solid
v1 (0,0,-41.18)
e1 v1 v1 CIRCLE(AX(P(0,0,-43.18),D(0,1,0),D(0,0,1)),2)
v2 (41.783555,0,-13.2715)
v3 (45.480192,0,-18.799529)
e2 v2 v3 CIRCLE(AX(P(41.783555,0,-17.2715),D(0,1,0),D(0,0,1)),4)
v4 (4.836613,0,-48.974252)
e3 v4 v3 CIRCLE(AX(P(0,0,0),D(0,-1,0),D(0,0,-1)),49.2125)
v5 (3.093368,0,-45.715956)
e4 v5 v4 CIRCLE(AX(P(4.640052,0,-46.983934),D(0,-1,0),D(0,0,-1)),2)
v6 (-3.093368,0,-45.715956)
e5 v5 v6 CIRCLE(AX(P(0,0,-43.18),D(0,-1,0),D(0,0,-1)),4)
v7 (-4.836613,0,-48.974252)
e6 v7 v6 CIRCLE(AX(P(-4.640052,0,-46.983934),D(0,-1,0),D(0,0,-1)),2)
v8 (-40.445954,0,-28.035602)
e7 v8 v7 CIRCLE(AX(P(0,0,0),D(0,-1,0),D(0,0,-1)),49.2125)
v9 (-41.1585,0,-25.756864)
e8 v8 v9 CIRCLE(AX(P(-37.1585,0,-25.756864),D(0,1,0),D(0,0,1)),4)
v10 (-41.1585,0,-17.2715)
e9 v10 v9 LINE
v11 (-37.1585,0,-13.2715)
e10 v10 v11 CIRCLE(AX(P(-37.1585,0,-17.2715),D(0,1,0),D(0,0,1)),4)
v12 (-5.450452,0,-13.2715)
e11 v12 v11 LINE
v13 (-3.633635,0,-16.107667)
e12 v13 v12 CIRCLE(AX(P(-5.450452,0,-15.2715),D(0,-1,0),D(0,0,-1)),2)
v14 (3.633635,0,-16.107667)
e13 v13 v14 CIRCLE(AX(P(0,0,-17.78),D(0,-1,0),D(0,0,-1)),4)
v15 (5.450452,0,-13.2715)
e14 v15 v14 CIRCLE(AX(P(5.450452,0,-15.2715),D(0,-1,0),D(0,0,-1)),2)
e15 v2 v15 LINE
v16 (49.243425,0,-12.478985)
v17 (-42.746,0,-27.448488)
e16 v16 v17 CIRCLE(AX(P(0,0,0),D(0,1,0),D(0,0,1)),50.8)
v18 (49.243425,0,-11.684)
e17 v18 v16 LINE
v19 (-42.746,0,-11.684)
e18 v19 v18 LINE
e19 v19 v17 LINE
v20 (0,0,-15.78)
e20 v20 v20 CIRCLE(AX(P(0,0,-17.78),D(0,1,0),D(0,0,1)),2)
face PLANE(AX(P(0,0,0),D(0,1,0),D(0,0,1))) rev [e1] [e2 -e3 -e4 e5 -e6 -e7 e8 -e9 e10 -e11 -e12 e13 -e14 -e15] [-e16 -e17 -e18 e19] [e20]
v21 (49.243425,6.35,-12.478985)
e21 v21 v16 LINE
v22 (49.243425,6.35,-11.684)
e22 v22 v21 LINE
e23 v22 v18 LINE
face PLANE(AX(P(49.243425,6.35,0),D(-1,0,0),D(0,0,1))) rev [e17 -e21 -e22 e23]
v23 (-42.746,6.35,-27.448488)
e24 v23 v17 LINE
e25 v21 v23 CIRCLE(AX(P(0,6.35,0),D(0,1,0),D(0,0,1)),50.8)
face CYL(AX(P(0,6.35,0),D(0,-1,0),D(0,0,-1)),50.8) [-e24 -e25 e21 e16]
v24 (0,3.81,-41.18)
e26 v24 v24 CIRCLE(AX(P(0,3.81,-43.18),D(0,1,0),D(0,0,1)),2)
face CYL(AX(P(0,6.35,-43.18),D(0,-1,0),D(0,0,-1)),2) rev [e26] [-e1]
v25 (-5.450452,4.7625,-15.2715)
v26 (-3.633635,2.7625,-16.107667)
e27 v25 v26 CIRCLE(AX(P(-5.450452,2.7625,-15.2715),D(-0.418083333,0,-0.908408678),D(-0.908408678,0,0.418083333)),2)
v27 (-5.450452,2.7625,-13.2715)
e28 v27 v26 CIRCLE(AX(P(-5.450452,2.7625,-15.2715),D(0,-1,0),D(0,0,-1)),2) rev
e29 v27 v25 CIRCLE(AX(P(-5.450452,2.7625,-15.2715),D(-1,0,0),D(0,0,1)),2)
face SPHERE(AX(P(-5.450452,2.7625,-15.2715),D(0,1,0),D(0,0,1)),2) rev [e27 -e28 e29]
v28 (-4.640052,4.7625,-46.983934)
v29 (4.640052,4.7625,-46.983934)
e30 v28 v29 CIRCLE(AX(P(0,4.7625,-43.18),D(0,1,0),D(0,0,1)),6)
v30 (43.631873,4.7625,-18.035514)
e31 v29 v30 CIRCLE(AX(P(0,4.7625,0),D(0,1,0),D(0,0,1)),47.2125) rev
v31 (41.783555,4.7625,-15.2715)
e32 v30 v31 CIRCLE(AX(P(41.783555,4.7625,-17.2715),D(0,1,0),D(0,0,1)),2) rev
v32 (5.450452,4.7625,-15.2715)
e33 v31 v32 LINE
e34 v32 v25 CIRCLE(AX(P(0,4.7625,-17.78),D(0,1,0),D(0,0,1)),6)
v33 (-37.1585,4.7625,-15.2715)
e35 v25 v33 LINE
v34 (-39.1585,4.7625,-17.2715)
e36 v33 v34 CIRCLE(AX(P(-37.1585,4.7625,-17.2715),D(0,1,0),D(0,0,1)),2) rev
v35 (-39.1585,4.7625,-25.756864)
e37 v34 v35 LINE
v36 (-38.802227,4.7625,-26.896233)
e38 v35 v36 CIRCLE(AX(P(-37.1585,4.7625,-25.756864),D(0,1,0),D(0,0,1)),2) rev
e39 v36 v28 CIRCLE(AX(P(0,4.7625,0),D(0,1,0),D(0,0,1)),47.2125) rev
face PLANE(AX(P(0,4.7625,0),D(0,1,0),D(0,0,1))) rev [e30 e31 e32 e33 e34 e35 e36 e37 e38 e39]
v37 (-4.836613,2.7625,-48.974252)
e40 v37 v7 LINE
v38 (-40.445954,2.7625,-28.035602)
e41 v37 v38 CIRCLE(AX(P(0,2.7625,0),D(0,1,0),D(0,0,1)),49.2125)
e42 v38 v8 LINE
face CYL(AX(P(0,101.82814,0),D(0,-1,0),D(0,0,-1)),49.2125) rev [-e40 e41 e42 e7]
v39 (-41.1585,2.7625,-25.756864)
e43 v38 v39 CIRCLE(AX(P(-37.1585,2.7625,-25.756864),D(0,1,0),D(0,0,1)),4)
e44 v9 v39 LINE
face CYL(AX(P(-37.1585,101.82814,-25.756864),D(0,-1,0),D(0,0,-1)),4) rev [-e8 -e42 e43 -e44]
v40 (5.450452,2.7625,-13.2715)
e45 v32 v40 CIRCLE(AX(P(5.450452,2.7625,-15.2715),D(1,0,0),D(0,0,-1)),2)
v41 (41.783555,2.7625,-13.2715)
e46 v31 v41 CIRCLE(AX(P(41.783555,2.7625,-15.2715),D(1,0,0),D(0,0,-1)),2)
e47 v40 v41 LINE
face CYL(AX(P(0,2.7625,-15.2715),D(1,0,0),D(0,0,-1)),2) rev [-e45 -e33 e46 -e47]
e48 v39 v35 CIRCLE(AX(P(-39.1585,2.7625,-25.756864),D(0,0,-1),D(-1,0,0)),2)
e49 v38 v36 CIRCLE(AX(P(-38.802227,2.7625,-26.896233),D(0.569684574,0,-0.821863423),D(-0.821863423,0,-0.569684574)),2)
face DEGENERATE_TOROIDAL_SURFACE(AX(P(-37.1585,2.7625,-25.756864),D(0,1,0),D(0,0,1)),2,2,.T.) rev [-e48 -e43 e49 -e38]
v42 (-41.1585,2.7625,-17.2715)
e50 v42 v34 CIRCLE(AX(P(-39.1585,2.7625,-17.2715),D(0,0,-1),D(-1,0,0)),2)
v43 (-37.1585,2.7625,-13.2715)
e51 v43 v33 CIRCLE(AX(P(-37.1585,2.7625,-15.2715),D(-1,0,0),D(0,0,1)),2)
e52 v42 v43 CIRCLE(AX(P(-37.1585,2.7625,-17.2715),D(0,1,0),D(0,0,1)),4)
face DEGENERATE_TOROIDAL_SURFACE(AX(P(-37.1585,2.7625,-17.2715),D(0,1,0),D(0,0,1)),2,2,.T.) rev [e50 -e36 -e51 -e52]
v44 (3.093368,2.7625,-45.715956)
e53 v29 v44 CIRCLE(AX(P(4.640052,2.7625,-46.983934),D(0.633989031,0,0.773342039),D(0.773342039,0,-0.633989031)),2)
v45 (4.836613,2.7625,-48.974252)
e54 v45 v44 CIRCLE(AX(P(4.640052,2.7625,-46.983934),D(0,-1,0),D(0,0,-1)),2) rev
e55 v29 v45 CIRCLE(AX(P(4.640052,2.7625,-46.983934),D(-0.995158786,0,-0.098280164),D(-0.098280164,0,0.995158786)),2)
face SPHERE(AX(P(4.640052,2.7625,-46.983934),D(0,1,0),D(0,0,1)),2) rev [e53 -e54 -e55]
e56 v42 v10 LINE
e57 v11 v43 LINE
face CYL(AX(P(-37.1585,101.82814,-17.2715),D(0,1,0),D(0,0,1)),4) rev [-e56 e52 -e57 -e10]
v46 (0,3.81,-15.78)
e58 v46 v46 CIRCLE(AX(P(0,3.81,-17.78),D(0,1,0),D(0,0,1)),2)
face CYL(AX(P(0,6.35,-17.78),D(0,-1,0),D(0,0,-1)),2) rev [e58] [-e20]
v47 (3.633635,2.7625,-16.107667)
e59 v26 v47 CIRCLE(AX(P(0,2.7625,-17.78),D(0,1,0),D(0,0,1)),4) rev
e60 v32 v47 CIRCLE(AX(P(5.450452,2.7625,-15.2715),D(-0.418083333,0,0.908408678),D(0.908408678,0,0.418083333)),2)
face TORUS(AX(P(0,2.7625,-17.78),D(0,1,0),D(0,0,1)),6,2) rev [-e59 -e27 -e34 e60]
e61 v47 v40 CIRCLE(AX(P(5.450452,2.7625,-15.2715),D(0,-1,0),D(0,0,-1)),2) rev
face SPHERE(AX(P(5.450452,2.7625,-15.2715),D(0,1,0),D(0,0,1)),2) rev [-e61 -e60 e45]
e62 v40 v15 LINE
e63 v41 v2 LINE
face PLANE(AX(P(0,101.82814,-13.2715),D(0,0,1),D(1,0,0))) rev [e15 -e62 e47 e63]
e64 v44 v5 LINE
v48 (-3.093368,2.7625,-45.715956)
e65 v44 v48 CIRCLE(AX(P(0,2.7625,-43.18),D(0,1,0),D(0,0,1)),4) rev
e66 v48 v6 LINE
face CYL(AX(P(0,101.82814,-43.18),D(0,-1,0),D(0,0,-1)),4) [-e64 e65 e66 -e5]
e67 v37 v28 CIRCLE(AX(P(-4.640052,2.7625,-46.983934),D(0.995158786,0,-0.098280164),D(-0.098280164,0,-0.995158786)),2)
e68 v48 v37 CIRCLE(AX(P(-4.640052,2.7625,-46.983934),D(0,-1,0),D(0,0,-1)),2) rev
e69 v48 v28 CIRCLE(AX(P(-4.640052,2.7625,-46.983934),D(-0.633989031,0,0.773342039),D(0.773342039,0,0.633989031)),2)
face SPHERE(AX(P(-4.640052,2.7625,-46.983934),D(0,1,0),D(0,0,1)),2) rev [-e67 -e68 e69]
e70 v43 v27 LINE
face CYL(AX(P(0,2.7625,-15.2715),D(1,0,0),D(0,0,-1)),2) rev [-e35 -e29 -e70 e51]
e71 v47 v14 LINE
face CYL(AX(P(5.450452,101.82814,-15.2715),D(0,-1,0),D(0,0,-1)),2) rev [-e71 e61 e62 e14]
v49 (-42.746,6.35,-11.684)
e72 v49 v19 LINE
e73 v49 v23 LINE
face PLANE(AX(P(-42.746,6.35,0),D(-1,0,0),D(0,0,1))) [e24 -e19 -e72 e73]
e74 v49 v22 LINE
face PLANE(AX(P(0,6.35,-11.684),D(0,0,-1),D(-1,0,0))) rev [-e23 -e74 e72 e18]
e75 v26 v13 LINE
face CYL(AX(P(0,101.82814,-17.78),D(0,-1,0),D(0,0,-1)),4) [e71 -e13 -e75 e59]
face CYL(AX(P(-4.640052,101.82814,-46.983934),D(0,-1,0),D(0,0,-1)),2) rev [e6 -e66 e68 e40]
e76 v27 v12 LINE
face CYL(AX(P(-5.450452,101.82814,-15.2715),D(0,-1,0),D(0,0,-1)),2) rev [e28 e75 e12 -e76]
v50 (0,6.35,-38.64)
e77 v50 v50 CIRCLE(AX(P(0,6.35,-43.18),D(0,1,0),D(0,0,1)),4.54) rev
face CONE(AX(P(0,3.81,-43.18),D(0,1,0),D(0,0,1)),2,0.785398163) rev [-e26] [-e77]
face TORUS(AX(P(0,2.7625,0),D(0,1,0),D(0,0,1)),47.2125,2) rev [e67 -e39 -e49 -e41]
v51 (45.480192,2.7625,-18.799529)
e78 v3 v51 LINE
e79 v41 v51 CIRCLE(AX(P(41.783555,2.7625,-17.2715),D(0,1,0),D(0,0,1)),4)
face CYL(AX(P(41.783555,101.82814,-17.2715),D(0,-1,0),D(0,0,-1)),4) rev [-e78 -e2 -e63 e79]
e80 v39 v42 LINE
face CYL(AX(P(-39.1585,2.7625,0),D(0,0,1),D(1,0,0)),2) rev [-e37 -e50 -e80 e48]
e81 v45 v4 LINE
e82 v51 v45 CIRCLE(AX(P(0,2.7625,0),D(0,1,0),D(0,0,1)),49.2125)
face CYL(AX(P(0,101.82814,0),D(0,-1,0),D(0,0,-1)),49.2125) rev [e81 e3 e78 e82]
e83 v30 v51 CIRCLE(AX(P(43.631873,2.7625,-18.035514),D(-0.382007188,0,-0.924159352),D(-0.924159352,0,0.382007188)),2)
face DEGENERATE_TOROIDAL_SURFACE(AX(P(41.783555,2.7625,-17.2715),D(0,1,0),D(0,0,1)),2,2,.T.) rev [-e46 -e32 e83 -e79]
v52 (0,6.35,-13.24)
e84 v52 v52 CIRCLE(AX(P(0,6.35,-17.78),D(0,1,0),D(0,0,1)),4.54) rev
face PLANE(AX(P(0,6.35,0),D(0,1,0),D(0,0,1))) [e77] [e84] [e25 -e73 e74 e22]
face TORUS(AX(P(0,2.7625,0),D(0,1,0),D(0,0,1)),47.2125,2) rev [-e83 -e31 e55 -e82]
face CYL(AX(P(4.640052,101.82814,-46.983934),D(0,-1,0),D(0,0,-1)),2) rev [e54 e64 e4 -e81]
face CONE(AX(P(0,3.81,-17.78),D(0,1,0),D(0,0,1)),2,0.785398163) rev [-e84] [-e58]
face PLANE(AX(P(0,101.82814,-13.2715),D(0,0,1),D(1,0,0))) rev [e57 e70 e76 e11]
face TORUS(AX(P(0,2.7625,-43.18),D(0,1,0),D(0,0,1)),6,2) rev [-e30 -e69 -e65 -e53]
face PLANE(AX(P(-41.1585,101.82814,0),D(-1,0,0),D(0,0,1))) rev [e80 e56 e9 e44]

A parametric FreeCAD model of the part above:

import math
import FreeCAD as App
import Part
import Sketcher
from FreeCAD import Vector
Q = App.Units.Quantity


def edges_at(feature, points):
    """Names of the edges that pass closest to the given points."""
    edges = feature.Shape.Edges
    near = lambda p: min(range(len(edges)), key=lambda i: edges[i].distToShape(Part.Vertex(*p))[0])
    return sorted({f"Edge{near(p) + 1}" for p in points})

doc = App.newDocument("Part")
body = doc.addObject("PartDesign::Body", "Body")

sketch1 = body.newObject("Sketcher::SketchObject", "Sketch")
sketch1.AttachmentSupport = (doc.getObject("XZ_Plane"), [""])
sketch1.MapMode = "FlatFace"
sketch1.addGeometry([
    Part.LineSegment(Vector(-42.7, -11.7, 0), Vector(49.2, -11.7, 0)),
    Part.LineSegment(Vector(49.2, -11.7, 0), Vector(49.2, -12.5, 0)),
    Part.ArcOfCircle(Part.Circle(Vector(0, 0, 0), Vector(0, 0, 1), 50.8), math.radians(-20.49), math.radians(-14.22)),
    Part.ArcOfCircle(Part.Circle(Vector(0, 0, 0), Vector(0, 0, 1), 50.8), math.radians(-84), math.radians(-20)),
    Part.ArcOfCircle(Part.Circle(Vector(0, 0, 0), Vector(0, 0, 1), 50.8), math.radians(-90), math.radians(-84.27)),
    Part.ArcOfCircle(Part.Circle(Vector(0, 0, 0), Vector(0, 0, 1), 50.8), math.radians(-95.73), math.radians(-90)),
    Part.ArcOfCircle(Part.Circle(Vector(0, 0, 0), Vector(0, 0, 1), 50.8), math.radians(-147), math.radians(-96)),
    Part.LineSegment(Vector(-42.7, -27.4, 0), Vector(-42.7, -11.7, 0)),
    Part.Circle(Vector(0, -17.8, 0), Vector(0, 0, 1), 2),
    Part.Circle(Vector(0, -43.2, 0), Vector(0, 0, 1), 2),
], False)
sketch1.addConstraint([
    Sketcher.Constraint("Coincident", 0, 2, 1, 1),
    Sketcher.Constraint("Coincident", 1, 2, 2, 2),
    Sketcher.Constraint("Tangent", 2, 1, 3, 2),
    Sketcher.Constraint("Tangent", 3, 1, 4, 2),
    Sketcher.Constraint("Tangent", 4, 1, 5, 2),
    Sketcher.Constraint("Tangent", 5, 1, 6, 2),
    Sketcher.Constraint("Coincident", 6, 1, 7, 1),
    Sketcher.Constraint("Coincident", 7, 2, 0, 1),
    Sketcher.Constraint("Horizontal", 0),
    Sketcher.Constraint("Vertical", 1),
    Sketcher.Constraint("Vertical", 7),
    Sketcher.Constraint("Coincident", 2, 3, -1, 1),
    Sketcher.Constraint("Coincident", 4, 3, -1, 1),
    Sketcher.Constraint("Coincident", 6, 3, -1, 1),
    Sketcher.Constraint("Equal", 8, 9),
    Sketcher.Constraint("PointOnObject", 8, 3, -2),
    Sketcher.Constraint("PointOnObject", 9, 3, -2),
    Sketcher.Constraint("PointOnObject", 4, 1, -2),
    Sketcher.Constraint("Horizontal", 8, 3, 2, 1),
    Sketcher.Constraint("Horizontal", 3, 1, 5, 1),
    Sketcher.Constraint("Radius", 2, Q("2 in")),
    Sketcher.Constraint("DistanceY", 9, 3, 8, 3, Q("1 in")),
    Sketcher.Constraint("DistanceY", 8, 3, -1, 1, Q("0.7 in")),
    Sketcher.Constraint("Diameter", 8, Q("4 mm")),
    Sketcher.Constraint("DistanceY", 0, 2, -1, 1, Q("0.46 in")),
    Sketcher.Constraint("DistanceY", 3, 1, -1, 1, Q("1.99 in")),
    Sketcher.Constraint("DistanceX", 6, 1, -1, 1, Q("42.746 mm")),
    Sketcher.Constraint("DistanceX", 0, 1, 0, 2, Q("91.989425 mm")),
])
pad1 = body.newObject("PartDesign::Pad", "Pad")
pad1.Profile = sketch1
pad1.Length = Q("0.25 in")
pad1.Reversed = True
doc.recompute()

chamfer = body.newObject("PartDesign::Chamfer", "Chamfer")
chamfer.Base = (pad1, edges_at(pad1, [(-2, 6.35, -17.78), (-2, 6.35, -43.18)]))
chamfer.Size = Q("0.1 in")

sketch2 = body.newObject("Sketcher::SketchObject", "Sketch001")
sketch2.AttachmentSupport = (doc.getObject("XZ_Plane"), [""])
sketch2.MapMode = "FlatFace"
sketch2.addGeometry([
    Part.ArcOfCircle(Part.Circle(Vector(0, 0, 0), Vector(0, 0, 1), 49.2), math.radians(-84), math.radians(-16)),
    Part.LineSegment(Vector(47.4, -13.3, 0), Vector(5.5, -13.3, 0)),
    Part.ArcOfCircle(Part.Circle(Vector(5.5, -15.3, 0), Vector(0, 0, 1), 2), math.radians(90), math.radians(205)),
    Part.ArcOfCircle(Part.Circle(Vector(0, -17.8, 0), Vector(0, 0, 1), 4), math.radians(155), math.radians(385)),
    Part.ArcOfCircle(Part.Circle(Vector(-5.5, -15.3, 0), Vector(0, 0, 1), 2), math.radians(-25), math.radians(90)),
    Part.LineSegment(Vector(-5.5, -13.3, 0), Vector(-41.2, -13.3, 0)),
    Part.LineSegment(Vector(-41.2, -13.3, 0), Vector(-41.2, -27, 0)),
    Part.ArcOfCircle(Part.Circle(Vector(0, 0, 0), Vector(0, 0, 1), 49.2), math.radians(-147), math.radians(-96)),
    Part.ArcOfCircle(Part.Circle(Vector(-4.6, -47, 0), Vector(0, 0, 1), 2), math.radians(-96), math.radians(39)),
    Part.ArcOfCircle(Part.Circle(Vector(0, -43.2, 0), Vector(0, 0, 1), 4), math.radians(-39), math.radians(219)),
    Part.ArcOfCircle(Part.Circle(Vector(4.6, -47, 0), Vector(0, 0, 1), 2), math.radians(141), math.radians(276)),
], False)
sketch2.addConstraint([
    Sketcher.Constraint("Coincident", 0, 2, 1, 1),
    Sketcher.Constraint("Tangent", 1, 2, 2, 1),
    Sketcher.Constraint("Tangent", 2, 2, 3, 2),
    Sketcher.Constraint("Tangent", 3, 1, 4, 1),
    Sketcher.Constraint("Tangent", 4, 2, 5, 1),
    Sketcher.Constraint("Coincident", 5, 2, 6, 1),
    Sketcher.Constraint("Coincident", 6, 2, 7, 1),
    Sketcher.Constraint("Tangent", 7, 2, 8, 1),
    Sketcher.Constraint("Tangent", 8, 2, 9, 2),
    Sketcher.Constraint("Tangent", 9, 1, 10, 1),
    Sketcher.Constraint("Tangent", 10, 2, 0, 1),
    Sketcher.Constraint("Horizontal", 1),
    Sketcher.Constraint("Horizontal", 5),
    Sketcher.Constraint("Vertical", 6),
    Sketcher.Constraint("Coincident", 0, 3, -1, 1),
    Sketcher.Constraint("Coincident", 7, 3, -1, 1),
    Sketcher.Constraint("Equal", 2, 4),
    Sketcher.Constraint("Equal", 0, 7),
    Sketcher.Constraint("Equal", 4, 8),
    Sketcher.Constraint("Equal", 3, 9),
    Sketcher.Constraint("Equal", 8, 10),
    Sketcher.Constraint("Symmetric", 2, 3, 4, 3, -2),
    Sketcher.Constraint("PointOnObject", 9, 3, -2),
    Sketcher.Constraint("Radius", 0, Q("1.9375 in")),
    Sketcher.Constraint("DistanceY", 9, 3, 3, 3, Q("1 in")),
    Sketcher.Constraint("DistanceY", 3, 3, -1, 1, Q("0.7 in")),
    Sketcher.Constraint("Radius", 2, Q("2 mm")),
    Sketcher.Constraint("Radius", 3, Q("4 mm")),
    Sketcher.Constraint("DistanceY", 0, 2, -1, 1, Q("0.5225 in")),
    Sketcher.Constraint("DistanceY", 6, 2, 6, 1, Q("13.707159 mm")),
])
pocket1 = body.newObject("PartDesign::Pocket", "Pocket")
pocket1.Profile = sketch2
pocket1.Length = Q("0.1875 in")
doc.recompute()

fillet = body.newObject("PartDesign::Fillet", "Fillet")
fillet.Base = (pocket1, edges_at(pocket1, [(47.389, 2.381, -13.271), (-41.158, 2.381, -13.271), (-41.158, 2.381, -26.979)]))
fillet.Radius = 4
doc.recompute()

fillet2 = body.newObject("PartDesign::Fillet", "Fillet001")
fillet2.Base = (fillet, edges_at(fillet, [
    (0, 4.763, -21.78),
    (0, 4.763, -39.18),
    (-2.877, 4.763, -47.927),
    (2.877, 4.763, -47.927),
    (29.336, 4.763, -39.513),
    (3.766, 4.763, -14.193),
    (-3.766, 4.763, -14.193),
    (-21.304, 4.763, -13.271),
    (23.617, 4.763, -13.271),
    (-24.945, 4.763, -42.422),
    (-41.158, 4.763, -21.514),
    (-39.987, 4.763, -14.443),
    (-40.976, 4.763, -26.951),
    (45.109, 4.763, -15.048),
]))
fillet2.Radius = 2

doc.recompute()
